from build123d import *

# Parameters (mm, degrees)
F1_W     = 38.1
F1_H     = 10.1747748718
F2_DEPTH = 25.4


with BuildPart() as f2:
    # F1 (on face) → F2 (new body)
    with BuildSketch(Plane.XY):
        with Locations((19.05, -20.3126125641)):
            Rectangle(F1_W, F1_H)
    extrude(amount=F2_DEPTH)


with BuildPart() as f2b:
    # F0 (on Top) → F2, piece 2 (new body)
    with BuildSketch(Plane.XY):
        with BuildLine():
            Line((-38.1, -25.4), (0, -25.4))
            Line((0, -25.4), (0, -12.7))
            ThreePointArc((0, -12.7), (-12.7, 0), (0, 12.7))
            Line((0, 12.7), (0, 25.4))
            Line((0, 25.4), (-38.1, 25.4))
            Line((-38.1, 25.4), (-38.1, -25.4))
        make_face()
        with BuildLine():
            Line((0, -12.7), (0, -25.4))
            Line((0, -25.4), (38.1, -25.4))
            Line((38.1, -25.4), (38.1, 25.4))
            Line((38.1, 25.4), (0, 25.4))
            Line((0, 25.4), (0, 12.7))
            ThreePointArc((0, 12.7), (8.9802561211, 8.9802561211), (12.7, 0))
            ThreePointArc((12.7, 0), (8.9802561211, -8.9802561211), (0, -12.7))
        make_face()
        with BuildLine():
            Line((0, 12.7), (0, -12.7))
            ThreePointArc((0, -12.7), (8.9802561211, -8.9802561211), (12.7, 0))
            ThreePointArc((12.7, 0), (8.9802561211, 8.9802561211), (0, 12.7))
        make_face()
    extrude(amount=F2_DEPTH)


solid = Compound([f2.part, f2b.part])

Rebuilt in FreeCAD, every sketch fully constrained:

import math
import FreeCAD as App
import Part
import Sketcher
from FreeCAD import Vector
Q = App.Units.Quantity


def add_polygon(sketch, points):
    """Adds a closed chain of lines whose ends are joined by coincident constraints."""
    first, n = sketch.GeometryCount, len(points)
    for a, b in zip(points, points[1:] + points[:1]):
        sketch.addGeometry(Part.LineSegment(App.Vector(*a, 0), App.Vector(*b, 0)), False)
    for i in range(n):
        sketch.addConstraint(Sketcher.Constraint("Coincident", first + i, 2, first + (i + 1) % n, 1))

doc = App.newDocument("Part")
body = doc.addObject("PartDesign::Body", "Body")

sketch1 = doc.addObject("Sketcher::SketchObject", "Sketch")
body.addObject(sketch1)
sketch1.AttachmentSupport = (doc.XY_Plane, [""])
sketch1.MapMode = "FlatFace"
add_polygon(sketch1, [(0, -15), (0, -25), (38, -25), (38, -15)])
sketch1.addConstraint(Sketcher.Constraint("Vertical", 0))
sketch1.addConstraint(Sketcher.Constraint("Horizontal", 1))
sketch1.addConstraint(Sketcher.Constraint("Vertical", 2))
sketch1.addConstraint(Sketcher.Constraint("Horizontal", 3))
sketch1.addConstraint(Sketcher.Constraint("PointOnObject", 0, 2, -2))
sketch1.addConstraint(Sketcher.Constraint("DistanceX", 1, 1, 1, 2, Q("1.5 in")))
sketch1.addConstraint(Sketcher.Constraint("DistanceY", 0, 2, -1, 1, Q("1 in")))
sketch1.addConstraint(Sketcher.Constraint("DistanceY", 0, 2, 0, 1, 10.174775))
pad1 = doc.addObject("PartDesign::Pad", "Pad")
body.addObject(pad1)
pad1.Profile = sketch1
pad1.Length = Q("1 in")
body2 = doc.addObject("PartDesign::Body", "Body001")

sketch2 = doc.addObject("Sketcher::SketchObject", "Sketch001")
body2.addObject(sketch2)
sketch2.AttachmentSupport = (doc.getObject("XY_Plane001"), [""])
sketch2.MapMode = "FlatFace"
add_polygon(sketch2, [(-38, -25), (38, -25), (38, 25), (-38, 25)])
sketch2.addGeometry(Part.ArcOfCircle(Part.Circle(Vector(0, 0, 0), Vector(0, 0, 1), 13), math.radians(90), math.radians(270)), False)
sketch2.addGeometry(Part.LineSegment(Vector(0, 13, 0), Vector(0, -13, 0)), False)
sketch2.addConstraint(Sketcher.Constraint("Coincident", 4, 1, 5, 1))
sketch2.addConstraint(Sketcher.Constraint("Coincident", 5, 2, 4, 2))
sketch2.addConstraint(Sketcher.Constraint("Horizontal", 0))
sketch2.addConstraint(Sketcher.Constraint("Vertical", 1))
sketch2.addConstraint(Sketcher.Constraint("Horizontal", 2))
sketch2.addConstraint(Sketcher.Constraint("Vertical", 3))
sketch2.addConstraint(Sketcher.Constraint("Vertical", 5))
sketch2.addConstraint(Sketcher.Constraint("Coincident", 4, 3, -1, 1))
sketch2.addConstraint(Sketcher.Constraint("Symmetric", 0, 2, 2, 2, -1, 1))
sketch2.addConstraint(Sketcher.Constraint("PointOnObject", 4, 1, -2))
sketch2.addConstraint(Sketcher.Constraint("Radius", 4, Q("0.5 in")))
sketch2.addConstraint(Sketcher.Constraint("DistanceX", 0, 1, 0, 2, Q("3 in")))
sketch2.addConstraint(Sketcher.Constraint("DistanceY", 1, 1, 1, 2, Q("2 in")))
pad2 = doc.addObject("PartDesign::Pad", "Pad001")
body2.addObject(pad2)
pad2.Profile = sketch2
pad2.Length = Q("1 in")

doc.recompute()
